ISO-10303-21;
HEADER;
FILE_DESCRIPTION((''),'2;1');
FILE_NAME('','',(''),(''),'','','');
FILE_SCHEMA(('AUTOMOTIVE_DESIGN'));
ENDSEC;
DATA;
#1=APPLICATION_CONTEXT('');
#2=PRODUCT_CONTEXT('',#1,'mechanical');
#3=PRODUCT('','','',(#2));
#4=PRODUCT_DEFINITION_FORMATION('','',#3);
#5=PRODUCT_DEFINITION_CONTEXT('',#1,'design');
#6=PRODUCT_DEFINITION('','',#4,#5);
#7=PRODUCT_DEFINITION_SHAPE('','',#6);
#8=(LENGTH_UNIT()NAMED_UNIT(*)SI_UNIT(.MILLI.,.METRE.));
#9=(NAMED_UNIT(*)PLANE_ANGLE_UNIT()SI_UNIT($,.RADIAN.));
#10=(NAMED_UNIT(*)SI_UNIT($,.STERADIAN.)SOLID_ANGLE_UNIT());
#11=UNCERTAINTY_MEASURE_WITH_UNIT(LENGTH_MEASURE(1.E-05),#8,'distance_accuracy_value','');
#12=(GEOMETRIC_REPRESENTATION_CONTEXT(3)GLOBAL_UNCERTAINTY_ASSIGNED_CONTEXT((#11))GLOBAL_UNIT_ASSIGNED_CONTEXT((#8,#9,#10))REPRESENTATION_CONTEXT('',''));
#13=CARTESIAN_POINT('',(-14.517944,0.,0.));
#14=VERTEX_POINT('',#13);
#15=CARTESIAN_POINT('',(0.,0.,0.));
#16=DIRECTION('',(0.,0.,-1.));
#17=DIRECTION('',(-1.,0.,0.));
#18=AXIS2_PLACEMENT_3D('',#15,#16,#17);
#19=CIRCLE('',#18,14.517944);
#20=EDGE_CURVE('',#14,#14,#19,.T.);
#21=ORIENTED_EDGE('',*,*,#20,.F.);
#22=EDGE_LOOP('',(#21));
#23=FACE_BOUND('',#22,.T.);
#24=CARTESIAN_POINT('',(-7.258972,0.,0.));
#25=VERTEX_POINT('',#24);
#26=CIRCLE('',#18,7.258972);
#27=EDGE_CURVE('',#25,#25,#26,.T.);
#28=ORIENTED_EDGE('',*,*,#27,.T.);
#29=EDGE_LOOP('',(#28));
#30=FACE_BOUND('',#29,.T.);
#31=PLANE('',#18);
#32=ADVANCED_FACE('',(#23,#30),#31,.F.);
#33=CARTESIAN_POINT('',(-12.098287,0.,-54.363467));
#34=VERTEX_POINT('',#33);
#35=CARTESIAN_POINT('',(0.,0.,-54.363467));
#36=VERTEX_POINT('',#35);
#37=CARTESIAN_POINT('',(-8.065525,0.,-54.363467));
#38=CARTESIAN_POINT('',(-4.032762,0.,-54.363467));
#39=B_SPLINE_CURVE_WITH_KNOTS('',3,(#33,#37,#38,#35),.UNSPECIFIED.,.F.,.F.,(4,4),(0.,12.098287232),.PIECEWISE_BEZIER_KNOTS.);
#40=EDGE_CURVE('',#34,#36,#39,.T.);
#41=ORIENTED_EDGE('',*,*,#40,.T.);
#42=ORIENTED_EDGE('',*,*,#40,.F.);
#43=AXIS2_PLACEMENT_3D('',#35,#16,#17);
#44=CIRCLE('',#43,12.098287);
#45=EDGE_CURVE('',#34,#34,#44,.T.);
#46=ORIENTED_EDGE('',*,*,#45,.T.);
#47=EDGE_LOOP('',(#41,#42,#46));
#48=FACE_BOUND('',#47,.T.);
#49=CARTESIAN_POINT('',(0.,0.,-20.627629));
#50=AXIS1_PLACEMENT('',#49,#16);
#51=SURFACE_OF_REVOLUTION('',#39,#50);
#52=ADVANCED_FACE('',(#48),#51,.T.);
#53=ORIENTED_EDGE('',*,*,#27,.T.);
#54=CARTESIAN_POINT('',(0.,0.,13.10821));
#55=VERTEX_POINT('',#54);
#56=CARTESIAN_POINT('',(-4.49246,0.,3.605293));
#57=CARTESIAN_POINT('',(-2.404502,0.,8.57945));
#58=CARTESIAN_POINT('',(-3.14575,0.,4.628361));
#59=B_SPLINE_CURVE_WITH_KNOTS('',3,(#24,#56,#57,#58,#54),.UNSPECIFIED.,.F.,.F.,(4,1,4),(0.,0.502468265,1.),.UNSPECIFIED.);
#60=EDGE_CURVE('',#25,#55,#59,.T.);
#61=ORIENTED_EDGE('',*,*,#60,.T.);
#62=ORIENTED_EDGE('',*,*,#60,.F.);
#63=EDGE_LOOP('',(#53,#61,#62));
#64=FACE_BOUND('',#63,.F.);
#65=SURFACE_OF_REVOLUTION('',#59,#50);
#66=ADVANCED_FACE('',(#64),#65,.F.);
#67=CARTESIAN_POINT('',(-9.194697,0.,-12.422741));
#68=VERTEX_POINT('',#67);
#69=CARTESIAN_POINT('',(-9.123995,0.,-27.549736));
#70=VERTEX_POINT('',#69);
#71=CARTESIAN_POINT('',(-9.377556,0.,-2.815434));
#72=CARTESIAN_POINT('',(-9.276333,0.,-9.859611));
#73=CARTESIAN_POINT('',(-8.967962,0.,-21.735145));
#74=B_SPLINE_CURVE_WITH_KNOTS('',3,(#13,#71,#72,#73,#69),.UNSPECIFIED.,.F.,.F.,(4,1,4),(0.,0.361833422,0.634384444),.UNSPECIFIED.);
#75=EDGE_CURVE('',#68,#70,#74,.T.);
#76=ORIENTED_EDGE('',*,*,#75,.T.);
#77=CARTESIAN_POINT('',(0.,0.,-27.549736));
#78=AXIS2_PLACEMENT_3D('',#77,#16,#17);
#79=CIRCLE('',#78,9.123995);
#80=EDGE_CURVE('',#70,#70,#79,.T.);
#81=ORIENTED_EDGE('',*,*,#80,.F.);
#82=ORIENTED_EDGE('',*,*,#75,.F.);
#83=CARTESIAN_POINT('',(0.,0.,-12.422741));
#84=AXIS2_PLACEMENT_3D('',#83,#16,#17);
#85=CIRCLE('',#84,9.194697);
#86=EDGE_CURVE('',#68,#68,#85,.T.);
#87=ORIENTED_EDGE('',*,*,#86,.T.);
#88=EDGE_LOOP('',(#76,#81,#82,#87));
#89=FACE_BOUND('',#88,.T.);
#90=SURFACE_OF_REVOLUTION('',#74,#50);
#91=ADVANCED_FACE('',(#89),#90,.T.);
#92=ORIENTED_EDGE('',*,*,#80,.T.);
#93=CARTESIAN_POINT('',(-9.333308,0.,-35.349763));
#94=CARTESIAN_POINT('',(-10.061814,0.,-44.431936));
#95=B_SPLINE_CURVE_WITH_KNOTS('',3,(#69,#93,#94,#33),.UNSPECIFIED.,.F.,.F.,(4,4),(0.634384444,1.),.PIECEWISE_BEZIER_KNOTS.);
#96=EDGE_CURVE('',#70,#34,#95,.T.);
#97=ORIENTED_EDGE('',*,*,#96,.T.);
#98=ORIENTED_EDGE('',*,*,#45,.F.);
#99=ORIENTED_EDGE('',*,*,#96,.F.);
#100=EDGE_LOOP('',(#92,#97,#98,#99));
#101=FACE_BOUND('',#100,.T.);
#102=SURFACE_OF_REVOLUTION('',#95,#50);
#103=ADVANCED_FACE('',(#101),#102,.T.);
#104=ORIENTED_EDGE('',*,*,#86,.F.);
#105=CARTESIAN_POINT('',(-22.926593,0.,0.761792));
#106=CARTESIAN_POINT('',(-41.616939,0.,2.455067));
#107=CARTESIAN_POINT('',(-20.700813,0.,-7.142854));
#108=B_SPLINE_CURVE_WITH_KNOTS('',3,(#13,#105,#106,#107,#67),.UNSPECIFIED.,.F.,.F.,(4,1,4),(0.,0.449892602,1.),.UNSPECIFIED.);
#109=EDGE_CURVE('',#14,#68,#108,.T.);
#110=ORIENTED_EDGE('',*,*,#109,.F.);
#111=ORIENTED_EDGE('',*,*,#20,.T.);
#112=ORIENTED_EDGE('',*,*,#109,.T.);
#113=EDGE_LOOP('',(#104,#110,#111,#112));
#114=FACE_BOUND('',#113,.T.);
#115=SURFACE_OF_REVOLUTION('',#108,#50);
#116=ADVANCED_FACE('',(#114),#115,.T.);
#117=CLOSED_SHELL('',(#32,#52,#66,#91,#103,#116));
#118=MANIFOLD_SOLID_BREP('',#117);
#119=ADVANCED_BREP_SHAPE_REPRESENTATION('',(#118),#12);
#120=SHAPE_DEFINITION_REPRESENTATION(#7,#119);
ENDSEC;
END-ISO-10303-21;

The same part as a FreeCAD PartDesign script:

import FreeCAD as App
import Part
import Sketcher

doc = App.newDocument("Part")
body = doc.addObject("PartDesign::Body", "Body")

sketch1 = body.newObject("Sketcher::SketchObject", "Sketch")
sketch1.AttachmentSupport = (doc.getObject("XZ_Plane"), [""])
sketch1.MapMode = "FlatFace"
sketch1.addGeometry(Part.LineSegment(App.Vector(0, -27.549736, 0), App.Vector(0, 0, 0)), False)
sketch1.addGeometry(Part.LineSegment(App.Vector(0, 0, 0), App.Vector(-14.517944, 0, 0)), False)
sketch1.addGeometry(Part.BSplineCurve([App.Vector(-14.517944, 0, 0), App.Vector(-9.377556, -2.815434, 0), App.Vector(-9.276333, -9.859611, 0), App.Vector(-8.967962, -21.735145, 0), App.Vector(-9.123995, -27.549736, 0)], [4, 1, 4], [0, 0.361833422, 0.634384444], False, 3, [1, 1, 1, 1, 1], False), False)
sketch1.addGeometry(Part.LineSegment(App.Vector(-9.123995, -27.549736, 0), App.Vector(0, -27.549736, 0)), False)
sketch1.addConstraint(Sketcher.Constraint("Block", 2))
sketch1.addConstraint(Sketcher.Constraint("Coincident", 0, 2, 1, 1))
sketch1.addConstraint(Sketcher.Constraint("Coincident", 1, 2, 2, 1))
sketch1.addConstraint(Sketcher.Constraint("Coincident", 2, 2, 3, 1))
sketch1.addConstraint(Sketcher.Constraint("Coincident", 3, 2, 0, 1))
sketch1.addConstraint(Sketcher.Constraint("Vertical", 0))
sketch1.addConstraint(Sketcher.Constraint("Horizontal", 1))
sketch1.addConstraint(Sketcher.Constraint("Horizontal", 3))
sketch1.addConstraint(Sketcher.Constraint("PointOnObject", 3, 2, -2))
revolution = body.newObject("PartDesign::Revolution", "Revolution")
revolution.Profile = sketch1
revolution.ReferenceAxis = (sketch1, ["V_Axis"])
revolution.Angle = 360

sketch2 = body.newObject("Sketcher::SketchObject", "Sketch001")
sketch2.AttachmentSupport = (doc.getObject("XZ_Plane"), [""])
sketch2.MapMode = "FlatFace"
sketch2.addGeometry(Part.LineSegment(App.Vector(-7.258972, 0, 0), App.Vector(0, 0, 0)), False)
sketch2.addGeometry(Part.LineSegment(App.Vector(0, 0, 0), App.Vector(0, 13.10821, 0)), False)
sketch2.addGeometry(Part.BSplineCurve([App.Vector(-7.258972, 0, 0), App.Vector(-4.49246, 3.605293, 0), App.Vector(-2.404502, 8.57945, 0), App.Vector(-3.14575, 4.628361, 0), App.Vector(0, 13.10821, 0)], [4, 1, 4], [0, 0.502468265, 1], False, 3, [1, 1, 1, 1, 1], False), False)
sketch2.addConstraint(Sketcher.Constraint("Block", 2))
sketch2.addConstraint(Sketcher.Constraint("Coincident", 0, 2, 1, 1))
sketch2.addConstraint(Sketcher.Constraint("Coincident", 1, 2, 2, 2))
sketch2.addConstraint(Sketcher.Constraint("Coincident", 2, 1, 0, 1))
sketch2.addConstraint(Sketcher.Constraint("Horizontal", 0))
sketch2.addConstraint(Sketcher.Constraint("Vertical", 1))
revolution2 = body.newObject("PartDesign::Revolution", "Revolution001")
revolution2.Profile = sketch2
revolution2.ReferenceAxis = (sketch2, ["V_Axis"])
revolution2.Angle = 360

sketch3 = body.newObject("Sketcher::SketchObject", "Sketch002")
sketch3.AttachmentSupport = (doc.getObject("XZ_Plane"), [""])
sketch3.MapMode = "FlatFace"
sketch3.addGeometry(Part.BSplineCurve([App.Vector(-14.517944, 0, 0), App.Vector(-9.377556, -2.815434, 0), App.Vector(-9.319822, -6.833217, 0), App.Vector(-9.194697, -12.422741, 0)], [4, 4], [0, 0.361833422], False, 3, [1, 1, 1, 1], False), False)
sketch3.addGeometry(Part.BSplineCurve([App.Vector(-14.517944, 0, 0), App.Vector(-22.926593, 0.761792, 0), App.Vector(-41.616939, 2.455067, 0), App.Vector(-20.700813, -7.142854, 0), App.Vector(-9.194697, -12.422741, 0)], [4, 1, 4], [0, 0.449892602, 1], False, 3, [1, 1, 1, 1, 1], False), False)
sketch3.addConstraint(Sketcher.Constraint("Block", 0))
sketch3.addConstraint(Sketcher.Constraint("Block", 1))
revolution3 = body.newObject("PartDesign::Revolution", "Revolution002")
revolution3.Profile = sketch3
revolution3.ReferenceAxis = (sketch3, ["V_Axis"])
revolution3.Angle = 360

sketch4 = body.newObject("Sketcher::SketchObject", "Sketch003")
sketch4.AttachmentSupport = (doc.getObject("XZ_Plane"), [""])
sketch4.MapMode = "FlatFace"
sketch4.addGeometry(Part.LineSegment(App.Vector(0, -54.363467, 0), App.Vector(0, -27.549736, 0)), False)
sketch4.addGeometry(Part.LineSegment(App.Vector(0, -27.549736, 0), App.Vector(-9.123995, -27.549736, 0)), False)
sketch4.addGeometry(Part.BSplineCurve([App.Vector(-9.123995, -27.549736, 0), App.Vector(-9.333308, -35.349763, 0), App.Vector(-10.061814, -44.431936, 0), App.Vector(-12.098287, -54.363467, 0)], [4, 4], [0.634384444, 1], False, 3, [1, 1, 1, 1], False), False)
sketch4.addGeometry(Part.BSplineCurve([App.Vector(-12.098287, -54.363467, 0), App.Vector(-8.065525, -54.363467, 0), App.Vector(-4.032762, -54.363467, 0), App.Vector(0, -54.363467, 0)], [4, 4], [0, 12.098287232], False, 3, [1, 1, 1, 1], False), False)
sketch4.addConstraint(Sketcher.Constraint("Block", 2))
sketch4.addConstraint(Sketcher.Constraint("Block", 3))
sketch4.addConstraint(Sketcher.Constraint("Coincident", 0, 2, 1, 1))
sketch4.addConstraint(Sketcher.Constraint("Coincident", 1, 2, 2, 1))
sketch4.addConstraint(Sketcher.Constraint("Coincident", 3, 2, 0, 1))
sketch4.addConstraint(Sketcher.Constraint("Vertical", 0))
sketch4.addConstraint(Sketcher.Constraint("Horizontal", 1))
revolution4 = body.newObject("PartDesign::Revolution", "Revolution003")
revolution4.Profile = sketch4
revolution4.ReferenceAxis = (sketch4, ["V_Axis"])
revolution4.Angle = 360

doc.recompute()
